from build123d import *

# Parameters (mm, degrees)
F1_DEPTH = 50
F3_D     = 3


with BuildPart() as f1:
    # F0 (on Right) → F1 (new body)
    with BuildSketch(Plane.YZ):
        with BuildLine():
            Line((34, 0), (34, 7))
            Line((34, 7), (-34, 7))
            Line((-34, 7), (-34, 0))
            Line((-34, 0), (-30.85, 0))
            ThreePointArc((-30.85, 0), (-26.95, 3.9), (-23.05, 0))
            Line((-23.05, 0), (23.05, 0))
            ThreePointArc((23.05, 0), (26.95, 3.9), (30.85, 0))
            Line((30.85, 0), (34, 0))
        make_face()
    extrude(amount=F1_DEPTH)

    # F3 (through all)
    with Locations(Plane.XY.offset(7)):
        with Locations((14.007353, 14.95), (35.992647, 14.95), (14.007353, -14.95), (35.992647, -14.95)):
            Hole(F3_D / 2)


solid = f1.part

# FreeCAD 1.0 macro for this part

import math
import FreeCAD as App
import Part
import Sketcher
from FreeCAD import Vector
Q = App.Units.Quantity

doc = App.newDocument("Part")
params = doc.addObject("Spreadsheet::Sheet", "Params")
for row, (alias, value) in enumerate([
    ("sketch1_radius", "3.9 mm"),
    ("sketch1_width", "68 mm"),
    ("sketch1_height", "7 mm"),
    ("sketch1_width2", "46.1 mm"),
    ("pad1_length", "50 mm"),
    ("sketch2_diameter", "3 mm"),
    ("hole_diameter", "3 mm"),
], start=1):
    params.set(f"A{row}", alias)
    params.set(f"B{row}", "=" + value)
    params.setAlias(f"B{row}", alias)

body = doc.addObject("PartDesign::Body", "Body")

# Sketch on YZ plane
sketch1 = body.newObject("Sketcher::SketchObject", "Sketch")
sketch1.AttachmentSupport = (doc.getObject("YZ_Plane"), [""])
sketch1.MapMode = "FlatFace"
sketch1.addGeometry(Part.LineSegment(Vector(34, 0, 0), Vector(34, 7, 0)), False)
sketch1.addGeometry(Part.LineSegment(Vector(34, 7, 0), Vector(-34, 7, 0)), False)
sketch1.addGeometry(Part.LineSegment(Vector(-34, 7, 0), Vector(-34, 0, 0)), False)
sketch1.addGeometry(Part.LineSegment(Vector(-34, 0, 0), Vector(-30.9, 0, 0)), False)
sketch1.addGeometry(Part.ArcOfCircle(Part.Circle(Vector(-26.9, 0, 0), Vector(0, 0, 1), 3.9), math.radians(0), math.radians(180)), False)
sketch1.addGeometry(Part.LineSegment(Vector(-23.1, 0, 0), Vector(23.1, 0, 0)), False)
sketch1.addGeometry(Part.ArcOfCircle(Part.Circle(Vector(26.9, 0, 0), Vector(0, 0, 1), 3.9), math.radians(0), math.radians(180)), False)
sketch1.addGeometry(Part.LineSegment(Vector(30.9, 0, 0), Vector(34, 0, 0)), False)
sketch1.addConstraint(Sketcher.Constraint("Coincident", 0, 2, 1, 1))
sketch1.addConstraint(Sketcher.Constraint("Coincident", 1, 2, 2, 1))
sketch1.addConstraint(Sketcher.Constraint("Coincident", 2, 2, 3, 1))
sketch1.addConstraint(Sketcher.Constraint("Coincident", 3, 2, 4, 2))
sketch1.addConstraint(Sketcher.Constraint("Coincident", 4, 1, 5, 1))
sketch1.addConstraint(Sketcher.Constraint("Coincident", 5, 2, 6, 2))
sketch1.addConstraint(Sketcher.Constraint("Coincident", 6, 1, 7, 1))
sketch1.addConstraint(Sketcher.Constraint("Coincident", 7, 2, 0, 1))
sketch1.addConstraint(Sketcher.Constraint("Vertical", 0))
sketch1.addConstraint(Sketcher.Constraint("Horizontal", 1))
sketch1.addConstraint(Sketcher.Constraint("Vertical", 2))
sketch1.addConstraint(Sketcher.Constraint("Horizontal", 3))
sketch1.addConstraint(Sketcher.Constraint("Horizontal", 5))
sketch1.addConstraint(Sketcher.Constraint("Horizontal", 7))
sketch1.addConstraint(Sketcher.Constraint("Equal", 4, 6))
sketch1.addConstraint(Sketcher.Constraint("Symmetric", 4, 3, 6, 3, -1, 1))
sketch1.addConstraint(Sketcher.Constraint("Symmetric", 2, 2, 7, 2, -1, 1))
sketch1.addConstraint(Sketcher.Constraint("PointOnObject", 4, 3, -1))
sketch1.addConstraint(Sketcher.Constraint("PointOnObject", 2, 2, -1))
sketch1.addConstraint(Sketcher.Constraint("PointOnObject", 4, 1, -1))
sketch1.addConstraint(Sketcher.Constraint("Radius", 4, Q("3.9 mm")))
sketch1.addConstraint(Sketcher.Constraint("DistanceX", 1, 2, 1, 1, Q("68 mm")))
sketch1.addConstraint(Sketcher.Constraint("DistanceY", 0, 1, 0, 2, Q("7 mm")))
sketch1.addConstraint(Sketcher.Constraint("DistanceX", 5, 1, 5, 2, Q("46.1 mm")))
sketch1.setExpression("Constraints[20]", "Params.sketch1_radius")
sketch1.setExpression("Constraints[21]", "Params.sketch1_width")
sketch1.setExpression("Constraints[22]", "Params.sketch1_height")
sketch1.setExpression("Constraints[23]", "Params.sketch1_width2")
pad1 = body.newObject("PartDesign::Pad", "Pad")
pad1.Profile = sketch1
pad1.setExpression("Length", "Params.pad1_length")

# Sketch on XY plane
sketch2 = body.newObject("Sketcher::SketchObject", "Sketch001")
sketch2.AttachmentSupport = (doc.getObject("XY_Plane"), [""])
sketch2.MapMode = "FlatFace"
sketch2.AttachmentOffset = App.Placement(Vector(0, 0, 7), App.Rotation())
sketch2.addGeometry(Part.Circle(Vector(14, 14.9, 0), Vector(0, 0, 1), 1.5), False)
sketch2.addGeometry(Part.Circle(Vector(36, 14.9, 0), Vector(0, 0, 1), 1.5), False)
sketch2.addGeometry(Part.Circle(Vector(14, -14.9, 0), Vector(0, 0, 1), 1.5), False)
sketch2.addGeometry(Part.Circle(Vector(36, -14.9, 0), Vector(0, 0, 1), 1.5), False)
sketch2.addConstraint(Sketcher.Constraint("Equal", 0, 1))
sketch2.addConstraint(Sketcher.Constraint("Equal", 1, 2))
sketch2.addConstraint(Sketcher.Constraint("Equal", 2, 3))
sketch2.addConstraint(Sketcher.Constraint("Symmetric", 0, 3, 2, 3, -1))
sketch2.addConstraint(Sketcher.Constraint("Symmetric", 1, 3, 3, 3, -1))
sketch2.addConstraint(Sketcher.Constraint("Horizontal", 0, 3, 1, 3))
sketch2.addConstraint(Sketcher.Constraint("Diameter", 0, Q("3 mm")))
sketch2.addConstraint(Sketcher.Constraint("DistanceY", 2, 3, 0, 3, Q("29.9 mm")))
sketch2.addConstraint(Sketcher.Constraint("DistanceX", -1, 1, 0, 3, Q("14.007353 mm")))
sketch2.addConstraint(Sketcher.Constraint("DistanceX", -1, 1, 1, 3, Q("35.992647 mm")))
sketch2.setExpression("Constraints[6]", "Params.sketch2_diameter")
doc.recompute()
hole = body.newObject("PartDesign::Hole", "Hole")
hole.Profile = sketch2
hole.ThreadType = "None"
hole.setExpression("Diameter", "Params.hole_diameter")
hole.DepthType = "ThroughAll"

doc.recompute()
